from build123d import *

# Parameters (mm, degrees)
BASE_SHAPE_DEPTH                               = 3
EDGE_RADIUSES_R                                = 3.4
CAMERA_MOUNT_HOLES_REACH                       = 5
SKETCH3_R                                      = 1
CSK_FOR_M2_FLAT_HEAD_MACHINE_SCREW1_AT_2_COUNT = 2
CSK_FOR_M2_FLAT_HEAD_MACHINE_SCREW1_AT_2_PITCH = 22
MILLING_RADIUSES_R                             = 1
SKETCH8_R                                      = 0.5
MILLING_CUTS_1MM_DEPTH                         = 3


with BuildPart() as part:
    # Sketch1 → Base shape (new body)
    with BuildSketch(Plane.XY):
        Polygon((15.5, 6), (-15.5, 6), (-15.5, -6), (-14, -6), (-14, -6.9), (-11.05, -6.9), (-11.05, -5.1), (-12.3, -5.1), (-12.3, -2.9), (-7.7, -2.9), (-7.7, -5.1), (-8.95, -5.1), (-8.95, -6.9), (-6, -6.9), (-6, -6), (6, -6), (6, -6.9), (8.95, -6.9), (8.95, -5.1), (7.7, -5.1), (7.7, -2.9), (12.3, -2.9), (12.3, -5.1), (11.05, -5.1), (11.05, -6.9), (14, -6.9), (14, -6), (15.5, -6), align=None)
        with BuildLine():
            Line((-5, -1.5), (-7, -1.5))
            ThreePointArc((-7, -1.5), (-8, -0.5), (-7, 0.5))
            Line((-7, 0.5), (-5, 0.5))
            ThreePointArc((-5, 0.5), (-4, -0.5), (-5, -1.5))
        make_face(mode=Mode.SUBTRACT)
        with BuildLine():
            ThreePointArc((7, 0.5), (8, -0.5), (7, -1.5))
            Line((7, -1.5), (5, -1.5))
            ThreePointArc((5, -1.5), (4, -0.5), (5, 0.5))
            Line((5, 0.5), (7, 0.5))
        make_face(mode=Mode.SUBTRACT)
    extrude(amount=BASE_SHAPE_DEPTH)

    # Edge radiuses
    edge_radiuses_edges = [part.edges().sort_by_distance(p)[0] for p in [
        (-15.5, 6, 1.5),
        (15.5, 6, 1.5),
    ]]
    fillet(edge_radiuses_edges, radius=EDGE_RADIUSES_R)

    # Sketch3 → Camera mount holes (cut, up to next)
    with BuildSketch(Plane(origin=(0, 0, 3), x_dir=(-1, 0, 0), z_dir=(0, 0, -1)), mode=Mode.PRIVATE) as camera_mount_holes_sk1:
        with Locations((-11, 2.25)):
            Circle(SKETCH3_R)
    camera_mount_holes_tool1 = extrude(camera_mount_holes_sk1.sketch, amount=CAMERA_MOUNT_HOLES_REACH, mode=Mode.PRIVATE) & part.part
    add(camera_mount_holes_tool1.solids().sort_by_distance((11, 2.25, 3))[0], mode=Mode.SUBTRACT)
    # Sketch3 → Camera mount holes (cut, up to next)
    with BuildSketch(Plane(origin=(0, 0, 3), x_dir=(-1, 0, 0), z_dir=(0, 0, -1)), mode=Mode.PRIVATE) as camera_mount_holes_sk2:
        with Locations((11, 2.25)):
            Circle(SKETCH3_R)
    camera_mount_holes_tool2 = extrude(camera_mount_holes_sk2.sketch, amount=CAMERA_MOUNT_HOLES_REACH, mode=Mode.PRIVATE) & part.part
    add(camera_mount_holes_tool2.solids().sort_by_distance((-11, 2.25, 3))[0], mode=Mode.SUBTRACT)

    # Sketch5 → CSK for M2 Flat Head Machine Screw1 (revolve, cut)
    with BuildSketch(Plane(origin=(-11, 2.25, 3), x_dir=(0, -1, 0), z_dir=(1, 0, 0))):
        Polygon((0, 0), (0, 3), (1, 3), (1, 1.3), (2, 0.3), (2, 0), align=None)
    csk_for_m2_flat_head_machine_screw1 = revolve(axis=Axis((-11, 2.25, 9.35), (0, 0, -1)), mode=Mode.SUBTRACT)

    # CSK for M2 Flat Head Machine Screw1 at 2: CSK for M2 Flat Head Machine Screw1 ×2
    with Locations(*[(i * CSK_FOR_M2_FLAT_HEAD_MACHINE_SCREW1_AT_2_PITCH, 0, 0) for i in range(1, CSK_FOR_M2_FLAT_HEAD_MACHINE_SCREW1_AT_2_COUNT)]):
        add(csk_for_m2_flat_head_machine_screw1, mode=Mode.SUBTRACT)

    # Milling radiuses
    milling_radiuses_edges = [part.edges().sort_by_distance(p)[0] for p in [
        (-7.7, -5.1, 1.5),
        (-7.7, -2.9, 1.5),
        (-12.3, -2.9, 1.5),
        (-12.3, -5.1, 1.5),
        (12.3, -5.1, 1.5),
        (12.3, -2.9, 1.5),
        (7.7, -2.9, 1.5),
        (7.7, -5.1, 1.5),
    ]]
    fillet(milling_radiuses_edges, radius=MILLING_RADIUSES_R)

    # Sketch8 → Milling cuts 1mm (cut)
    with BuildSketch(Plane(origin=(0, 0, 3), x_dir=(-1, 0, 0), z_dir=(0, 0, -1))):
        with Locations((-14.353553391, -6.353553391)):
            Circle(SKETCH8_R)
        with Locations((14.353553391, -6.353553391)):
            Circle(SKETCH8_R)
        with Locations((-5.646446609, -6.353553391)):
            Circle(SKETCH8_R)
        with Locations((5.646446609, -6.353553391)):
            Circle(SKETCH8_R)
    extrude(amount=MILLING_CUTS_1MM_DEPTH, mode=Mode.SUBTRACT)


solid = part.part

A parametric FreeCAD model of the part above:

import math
import FreeCAD as App
import Part
import Sketcher
Q = App.Units.Quantity


def edges_at(feature, points):
    """Names of the edges that pass closest to the given points."""
    edges = feature.Shape.Edges
    near = lambda p: min(range(len(edges)), key=lambda i: edges[i].distToShape(Part.Vertex(*p))[0])
    return sorted({f"Edge{near(p) + 1}" for p in points})

doc = App.newDocument("Part")
body = doc.addObject("PartDesign::Body", "Body")

# Sketch on XY plane
sketch1 = body.newObject("Sketcher::SketchObject", "Sketch")
sketch1.AttachmentSupport = (doc.getObject("XY_Plane"), [""])
sketch1.MapMode = "FlatFace"
sketch1.addGeometry([
    Part.LineSegment(App.Vector(15.5, 6, 0), App.Vector(-15.5, 6, 0)),  # 0
    Part.LineSegment(App.Vector(-15.5, 6, 0), App.Vector(-15.5, -6, 0)),  # 1
    Part.LineSegment(App.Vector(-15.5, -6, 0), App.Vector(-14, -6, 0)),  # 2
    Part.LineSegment(App.Vector(-14, -6, 0), App.Vector(-14, -6.9, 0)),  # 3
    Part.LineSegment(App.Vector(-14, -6.9, 0), App.Vector(-11.1, -6.9, 0)),  # 4
    Part.LineSegment(App.Vector(-11.1, -6.9, 0), App.Vector(-11.1, -5.1, 0)),  # 5
    Part.LineSegment(App.Vector(-11.1, -5.1, 0), App.Vector(-12.3, -5.1, 0)),  # 6
    Part.LineSegment(App.Vector(-12.3, -5.1, 0), App.Vector(-12.3, -2.9, 0)),  # 7
    Part.LineSegment(App.Vector(-12.3, -2.9, 0), App.Vector(-7.7, -2.9, 0)),  # 8
    Part.LineSegment(App.Vector(-7.7, -2.9, 0), App.Vector(-7.7, -5.1, 0)),  # 9
    Part.LineSegment(App.Vector(-7.7, -5.1, 0), App.Vector(-8.9, -5.1, 0)),  # 10
    Part.LineSegment(App.Vector(-8.9, -5.1, 0), App.Vector(-8.9, -6.9, 0)),  # 11
    Part.LineSegment(App.Vector(-8.9, -6.9, 0), App.Vector(-6, -6.9, 0)),  # 12
    Part.LineSegment(App.Vector(-6, -6.9, 0), App.Vector(-6, -6, 0)),  # 13
    Part.LineSegment(App.Vector(-6, -6, 0), App.Vector(6, -6, 0)),  # 14
    Part.LineSegment(App.Vector(6, -6, 0), App.Vector(6, -6.9, 0)),  # 15
    Part.LineSegment(App.Vector(6, -6.9, 0), App.Vector(8.9, -6.9, 0)),  # 16
    Part.LineSegment(App.Vector(8.9, -6.9, 0), App.Vector(8.9, -5.1, 0)),  # 17
    Part.LineSegment(App.Vector(8.9, -5.1, 0), App.Vector(7.7, -5.1, 0)),  # 18
    Part.LineSegment(App.Vector(7.7, -5.1, 0), App.Vector(7.7, -2.9, 0)),  # 19
    Part.LineSegment(App.Vector(7.7, -2.9, 0), App.Vector(12.3, -2.9, 0)),  # 20
    Part.LineSegment(App.Vector(12.3, -2.9, 0), App.Vector(12.3, -5.1, 0)),  # 21
    Part.LineSegment(App.Vector(12.3, -5.1, 0), App.Vector(11.1, -5.1, 0)),  # 22
    Part.LineSegment(App.Vector(11.1, -5.1, 0), App.Vector(11.1, -6.9, 0)),  # 23
    Part.LineSegment(App.Vector(11.1, -6.9, 0), App.Vector(14, -6.9, 0)),  # 24
    Part.LineSegment(App.Vector(14, -6.9, 0), App.Vector(14, -6, 0)),  # 25
    Part.LineSegment(App.Vector(14, -6, 0), App.Vector(15.5, -6, 0)),  # 26
    Part.LineSegment(App.Vector(15.5, -6, 0), App.Vector(15.5, 6, 0)),  # 27
    Part.ArcOfCircle(Part.Circle(App.Vector(-5, -0.5, 0), App.Vector(0, 0, 1), 1), math.radians(-90), math.radians(90)),  # 28
    Part.LineSegment(App.Vector(-5, -1.5, 0), App.Vector(-7, -1.5, 0)),  # 29
    Part.ArcOfCircle(Part.Circle(App.Vector(-7, -0.5, 0), App.Vector(0, 0, 1), 1), math.radians(90), math.radians(270)),  # 30
    Part.LineSegment(App.Vector(-7, 0.5, 0), App.Vector(-5, 0.5, 0)),  # 31
    Part.LineSegment(App.Vector(5, 0.5, 0), App.Vector(7, 0.5, 0)),  # 32
    Part.ArcOfCircle(Part.Circle(App.Vector(7, -0.5, 0), App.Vector(0, 0, 1), 1), math.radians(-90), math.radians(90)),  # 33
    Part.LineSegment(App.Vector(7, -1.5, 0), App.Vector(5, -1.5, 0)),  # 34
    Part.ArcOfCircle(Part.Circle(App.Vector(5, -0.5, 0), App.Vector(0, 0, 1), 1), math.radians(90), math.radians(270)),  # 35
], False)
sketch1.addConstraint([
    Sketcher.Constraint("Coincident", 0, 2, 1, 1),
    Sketcher.Constraint("Coincident", 1, 2, 2, 1),
    Sketcher.Constraint("Coincident", 2, 2, 3, 1),
    Sketcher.Constraint("Coincident", 3, 2, 4, 1),
    Sketcher.Constraint("Coincident", 4, 2, 5, 1),
    Sketcher.Constraint("Coincident", 5, 2, 6, 1),
    Sketcher.Constraint("Coincident", 6, 2, 7, 1),
    Sketcher.Constraint("Coincident", 7, 2, 8, 1),
    Sketcher.Constraint("Coincident", 8, 2, 9, 1),
    Sketcher.Constraint("Coincident", 9, 2, 10, 1),
    Sketcher.Constraint("Coincident", 10, 2, 11, 1),
    Sketcher.Constraint("Coincident", 11, 2, 12, 1),
    Sketcher.Constraint("Coincident", 12, 2, 13, 1),
    Sketcher.Constraint("Coincident", 13, 2, 14, 1),
    Sketcher.Constraint("Coincident", 14, 2, 15, 1),
    Sketcher.Constraint("Coincident", 15, 2, 16, 1),
    Sketcher.Constraint("Coincident", 16, 2, 17, 1),
    Sketcher.Constraint("Coincident", 17, 2, 18, 1),
    Sketcher.Constraint("Coincident", 18, 2, 19, 1),
    Sketcher.Constraint("Coincident", 19, 2, 20, 1),
    Sketcher.Constraint("Coincident", 20, 2, 21, 1),
    Sketcher.Constraint("Coincident", 21, 2, 22, 1),
    Sketcher.Constraint("Coincident", 22, 2, 23, 1),
    Sketcher.Constraint("Coincident", 23, 2, 24, 1),
    Sketcher.Constraint("Coincident", 24, 2, 25, 1),
    Sketcher.Constraint("Coincident", 25, 2, 26, 1),
    Sketcher.Constraint("Coincident", 26, 2, 27, 1),
    Sketcher.Constraint("Coincident", 27, 2, 0, 1),
    Sketcher.Constraint("Tangent", 28, 1, 29, 1),
    Sketcher.Constraint("Tangent", 29, 2, 30, 2),
    Sketcher.Constraint("Tangent", 30, 1, 31, 1),
    Sketcher.Constraint("Tangent", 31, 2, 28, 2),
    Sketcher.Constraint("Tangent", 32, 2, 33, 2),
    Sketcher.Constraint("Tangent", 33, 1, 34, 1),
    Sketcher.Constraint("Tangent", 34, 2, 35, 2),
    Sketcher.Constraint("Tangent", 35, 1, 32, 1),
    Sketcher.Constraint("Horizontal", 0),
    Sketcher.Constraint("Vertical", 1),
    Sketcher.Constraint("Horizontal", 2),
    Sketcher.Constraint("Vertical", 3),
    Sketcher.Constraint("Horizontal", 4),
    Sketcher.Constraint("Vertical", 5),
    Sketcher.Constraint("Horizontal", 6),
    Sketcher.Constraint("Vertical", 7),
    Sketcher.Constraint("Horizontal", 8),
    Sketcher.Constraint("Vertical", 9),
    Sketcher.Constraint("Horizontal", 10),
    Sketcher.Constraint("Vertical", 11),
    Sketcher.Constraint("Horizontal", 12),
    Sketcher.Constraint("Vertical", 13),
    Sketcher.Constraint("Horizontal", 14),
    Sketcher.Constraint("Vertical", 15),
    Sketcher.Constraint("Horizontal", 16),
    Sketcher.Constraint("Vertical", 17),
    Sketcher.Constraint("Horizontal", 18),
    Sketcher.Constraint("Vertical", 19),
    Sketcher.Constraint("Horizontal", 20),
    Sketcher.Constraint("Vertical", 21),
    Sketcher.Constraint("Horizontal", 22),
    Sketcher.Constraint("Vertical", 23),
    Sketcher.Constraint("Horizontal", 24),
    Sketcher.Constraint("Vertical", 25),
    Sketcher.Constraint("Horizontal", 26),
    Sketcher.Constraint("Vertical", 27),
    Sketcher.Constraint("Horizontal", 29),
    Sketcher.Constraint("Horizontal", 31),
    Sketcher.Constraint("Horizontal", 32),
    Sketcher.Constraint("Horizontal", 34),
    Sketcher.Constraint("Equal", 30, 33),
    Sketcher.Constraint("Symmetric", 0, 2, 26, 2, -1, 1),
    Sketcher.Constraint("Symmetric", 30, 3, 33, 3, -2),
    Sketcher.Constraint("Symmetric", 12, 2, 15, 2, -2),
    Sketcher.Constraint("Symmetric", 10, 2, 17, 2, -2),
    Sketcher.Constraint("Symmetric", 8, 2, 19, 2, -2),
    Sketcher.Constraint("Symmetric", 6, 2, 21, 2, -2),
    Sketcher.Constraint("Symmetric", 4, 2, 23, 2, -2),
    Sketcher.Constraint("Symmetric", 2, 2, 25, 2, -2),
    Sketcher.Constraint("Horizontal", 6, 2, 9, 2),
    Sketcher.Constraint("Horizontal", 4, 2, 11, 2),
    Sketcher.Constraint("Horizontal", 2, 2, 13, 2),
    Sketcher.Constraint("Equal", 6, 10),
    Sketcher.Constraint("Equal", 4, 12),
    Sketcher.Constraint("Equal", 31, 32),
    Sketcher.Constraint("Equal", 14, 1),
    Sketcher.Constraint("Radius", 28, Q("1 mm")),
    Sketcher.Constraint("DistanceX", 0, 2, 0, 1, Q("31 mm")),
    Sketcher.Constraint("DistanceX", 14, 1, 14, 2, Q("12 mm")),
    Sketcher.Constraint("DistanceX", 29, 2, 29, 1, Q("2 mm")),
    Sketcher.Constraint("DistanceX", 2, 1, 2, 2, Q("1.5 mm")),
    Sketcher.Constraint("DistanceX", 8, 1, 8, 2, Q("4.6 mm")),
    Sketcher.Constraint("DistanceY", 3, 2, 3, 1, Q("0.9 mm")),
    Sketcher.Constraint("DistanceY", 5, 1, 5, 2, Q("1.8 mm")),
    Sketcher.Constraint("DistanceY", 7, 1, 7, 2, Q("2.2 mm")),
    Sketcher.Constraint("DistanceX", 28, 3, -1, 1, Q("5 mm")),
    Sketcher.Constraint("DistanceX", 4, 1, 4, 2, Q("2.95 mm")),
    Sketcher.Constraint("DistanceY", 28, 3, -1, 1, Q("0.5 mm")),
])
pad1 = body.newObject("PartDesign::Pad", "Pad")
pad1.Profile = sketch1
pad1.Length = 3
doc.recompute()

fillet = body.newObject("PartDesign::Fillet", "Fillet")
fillet.Base = (pad1, edges_at(pad1, [(-15.5, 6, 1.5), (15.5, 6, 1.5)]))
fillet.Radius = 3.4

# Sketch on XY plane
sketch2 = body.newObject("Sketcher::SketchObject", "Sketch001")
sketch2.AttachmentSupport = (doc.getObject("XY_Plane"), [""])
sketch2.MapMode = "FlatFace"
sketch2.AttachmentOffset = App.Placement(App.Vector(0, 0, 3), App.Rotation())
sketch2.addGeometry(Part.Circle(App.Vector(11, 2.2, 0), App.Vector(0, 0, 1), 1), False)
sketch2.addConstraint([
    Sketcher.Constraint("Diameter", 0, Q("2 mm")),
    Sketcher.Constraint("DistanceX", -1, 1, 0, 3, Q("11 mm")),
    Sketcher.Constraint("DistanceY", -1, 1, 0, 3, Q("2.25 mm")),
])
pocket1 = body.newObject("PartDesign::Pocket", "Pocket")
pocket1.Profile = sketch2
pocket1.Type = "UpToFirst"

# Sketch on XY plane
sketch3 = body.newObject("Sketcher::SketchObject", "Sketch002")
sketch3.AttachmentSupport = (doc.getObject("XY_Plane"), [""])
sketch3.MapMode = "FlatFace"
sketch3.AttachmentOffset = App.Placement(App.Vector(0, 0, 3), App.Rotation())
sketch3.addGeometry(Part.Circle(App.Vector(-11, 2.2, 0), App.Vector(0, 0, 1), 1), False)
sketch3.addConstraint([
    Sketcher.Constraint("Diameter", 0, Q("2 mm")),
    Sketcher.Constraint("DistanceX", 0, 3, -1, 1, Q("11 mm")),
    Sketcher.Constraint("DistanceY", -1, 1, 0, 3, Q("2.25 mm")),
])
pocket2 = body.newObject("PartDesign::Pocket", "Pocket001")
pocket2.Profile = sketch3
pocket2.Type = "UpToFirst"

# Sketch on YZ plane
sketch4 = body.newObject("Sketcher::SketchObject", "Sketch003")
sketch4.AttachmentSupport = (doc.getObject("YZ_Plane"), [""])
sketch4.MapMode = "FlatFace"
sketch4.AttachmentOffset = App.Placement(App.Vector(0, 0, -11), App.Rotation())
sketch4.addGeometry([
    Part.LineSegment(App.Vector(2.25, 0, 0), App.Vector(2.25, 3, 0)),  # 0
    Part.LineSegment(App.Vector(2.25, 3, 0), App.Vector(0.25, 3, 0)),  # 1
    Part.LineSegment(App.Vector(0.25, 3, 0), App.Vector(0.25, 2.7, 0)),  # 2
    Part.LineSegment(App.Vector(0.25, 2.7, 0), App.Vector(1.25, 1.7, 0)),  # 3
    Part.LineSegment(App.Vector(1.25, 1.7, 0), App.Vector(1.25, 0, 0)),  # 4
    Part.LineSegment(App.Vector(1.25, 0, 0), App.Vector(2.25, 0, 0)),  # 5
], False)
sketch4.addGeometry(Part.LineSegment(App.Vector(2.25, 3, 0), App.Vector(2.25, 0, 0)), True)  # axis
sketch4.addConstraint([
    Sketcher.Constraint("Coincident", 0, 2, 1, 1),
    Sketcher.Constraint("Coincident", 1, 2, 2, 1),
    Sketcher.Constraint("Coincident", 2, 2, 3, 1),
    Sketcher.Constraint("Coincident", 3, 2, 4, 1),
    Sketcher.Constraint("Coincident", 4, 2, 5, 1),
    Sketcher.Constraint("Coincident", 5, 2, 0, 1),
    Sketcher.Constraint("Vertical", 0),
    Sketcher.Constraint("Horizontal", 1),
    Sketcher.Constraint("Vertical", 2),
    Sketcher.Constraint("Vertical", 4),
    Sketcher.Constraint("Horizontal", 5),
    Sketcher.Constraint("Vertical", 6),
    Sketcher.Constraint("Coincident", 6, 1, 0, 2),
    Sketcher.Constraint("PointOnObject", 4, 2, -1),
    Sketcher.Constraint("PointOnObject", 6, 2, -1),
    Sketcher.Constraint("DistanceX", 1, 2, 1, 1, Q("2 mm")),
    Sketcher.Constraint("DistanceX", 5, 1, 5, 2, Q("1 mm")),
    Sketcher.Constraint("DistanceY", 0, 1, 0, 2, Q("3 mm")),
    Sketcher.Constraint("Angle", 3, Q("-45 deg")),
    Sketcher.Constraint("DistanceY", 2, 2, 2, 1, Q("0.3 mm")),
    Sketcher.Constraint("DistanceX", -1, 1, 0, 2, Q("2.25 mm")),
])
groove = body.newObject("PartDesign::Groove", "Groove")
groove.Profile = sketch4
groove.ReferenceAxis = (sketch4, ["Axis0"])
groove.Angle = 360
doc.recompute()

linearpattern = body.newObject("PartDesign::LinearPattern", "LinearPattern")
linearpattern.Originals = [groove]
linearpattern.Direction = (doc.getObject("X_Axis"), [""])
linearpattern.Mode = "offset"
linearpattern.Offset = 22
linearpattern.Occurrences = 2
body.Tip = linearpattern
doc.recompute()

fillet2 = body.newObject("PartDesign::Fillet", "Fillet001")
fillet2.Base = (linearpattern, edges_at(linearpattern, [
    (-7.7, -5.1, 1.5),
    (-7.7, -2.9, 1.5),
    (-12.3, -2.9, 1.5),
    (-12.3, -5.1, 1.5),
    (12.3, -5.1, 1.5),
    (12.3, -2.9, 1.5),
    (7.7, -2.9, 1.5),
    (7.7, -5.1, 1.5),
]))
fillet2.Radius = 1

# Sketch on XY plane
sketch5 = body.newObject("Sketcher::SketchObject", "Sketch004")
sketch5.AttachmentSupport = (doc.getObject("XY_Plane"), [""])
sketch5.MapMode = "FlatFace"
sketch5.AttachmentOffset = App.Placement(App.Vector(0, 0, 3), App.Rotation())
sketch5.addGeometry([
    Part.Circle(App.Vector(14.4, -6.4, 0), App.Vector(0, 0, 1), 0.5),
    Part.Circle(App.Vector(-14.4, -6.4, 0), App.Vector(0, 0, 1), 0.5),
    Part.Circle(App.Vector(5.6, -6.4, 0), App.Vector(0, 0, 1), 0.5),
    Part.Circle(App.Vector(-5.6, -6.4, 0), App.Vector(0, 0, 1), 0.5),
], False)
sketch5.addConstraint([
    Sketcher.Constraint("Equal", 0, 1),
    Sketcher.Constraint("Equal", 1, 2),
    Sketcher.Constraint("Equal", 2, 3),
    Sketcher.Constraint("Symmetric", 0, 3, 1, 3, -2),
    Sketcher.Constraint("Symmetric", 2, 3, 3, 3, -2),
    Sketcher.Constraint("Horizontal", 1, 3, 2, 3),
    Sketcher.Constraint("Diameter", 0, Q("1 mm")),
    Sketcher.Constraint("DistanceX", 1, 3, 2, 3, Q("20 mm")),
    Sketcher.Constraint("DistanceX", -1, 1, 0, 3, Q("14.353553 mm")),
    Sketcher.Constraint("DistanceY", 0, 3, -1, 1, Q("6.353553 mm")),
])
pocket3 = body.newObject("PartDesign::Pocket", "Pocket002")
pocket3.Profile = sketch5
pocket3.Length = 3

doc.recompute()
